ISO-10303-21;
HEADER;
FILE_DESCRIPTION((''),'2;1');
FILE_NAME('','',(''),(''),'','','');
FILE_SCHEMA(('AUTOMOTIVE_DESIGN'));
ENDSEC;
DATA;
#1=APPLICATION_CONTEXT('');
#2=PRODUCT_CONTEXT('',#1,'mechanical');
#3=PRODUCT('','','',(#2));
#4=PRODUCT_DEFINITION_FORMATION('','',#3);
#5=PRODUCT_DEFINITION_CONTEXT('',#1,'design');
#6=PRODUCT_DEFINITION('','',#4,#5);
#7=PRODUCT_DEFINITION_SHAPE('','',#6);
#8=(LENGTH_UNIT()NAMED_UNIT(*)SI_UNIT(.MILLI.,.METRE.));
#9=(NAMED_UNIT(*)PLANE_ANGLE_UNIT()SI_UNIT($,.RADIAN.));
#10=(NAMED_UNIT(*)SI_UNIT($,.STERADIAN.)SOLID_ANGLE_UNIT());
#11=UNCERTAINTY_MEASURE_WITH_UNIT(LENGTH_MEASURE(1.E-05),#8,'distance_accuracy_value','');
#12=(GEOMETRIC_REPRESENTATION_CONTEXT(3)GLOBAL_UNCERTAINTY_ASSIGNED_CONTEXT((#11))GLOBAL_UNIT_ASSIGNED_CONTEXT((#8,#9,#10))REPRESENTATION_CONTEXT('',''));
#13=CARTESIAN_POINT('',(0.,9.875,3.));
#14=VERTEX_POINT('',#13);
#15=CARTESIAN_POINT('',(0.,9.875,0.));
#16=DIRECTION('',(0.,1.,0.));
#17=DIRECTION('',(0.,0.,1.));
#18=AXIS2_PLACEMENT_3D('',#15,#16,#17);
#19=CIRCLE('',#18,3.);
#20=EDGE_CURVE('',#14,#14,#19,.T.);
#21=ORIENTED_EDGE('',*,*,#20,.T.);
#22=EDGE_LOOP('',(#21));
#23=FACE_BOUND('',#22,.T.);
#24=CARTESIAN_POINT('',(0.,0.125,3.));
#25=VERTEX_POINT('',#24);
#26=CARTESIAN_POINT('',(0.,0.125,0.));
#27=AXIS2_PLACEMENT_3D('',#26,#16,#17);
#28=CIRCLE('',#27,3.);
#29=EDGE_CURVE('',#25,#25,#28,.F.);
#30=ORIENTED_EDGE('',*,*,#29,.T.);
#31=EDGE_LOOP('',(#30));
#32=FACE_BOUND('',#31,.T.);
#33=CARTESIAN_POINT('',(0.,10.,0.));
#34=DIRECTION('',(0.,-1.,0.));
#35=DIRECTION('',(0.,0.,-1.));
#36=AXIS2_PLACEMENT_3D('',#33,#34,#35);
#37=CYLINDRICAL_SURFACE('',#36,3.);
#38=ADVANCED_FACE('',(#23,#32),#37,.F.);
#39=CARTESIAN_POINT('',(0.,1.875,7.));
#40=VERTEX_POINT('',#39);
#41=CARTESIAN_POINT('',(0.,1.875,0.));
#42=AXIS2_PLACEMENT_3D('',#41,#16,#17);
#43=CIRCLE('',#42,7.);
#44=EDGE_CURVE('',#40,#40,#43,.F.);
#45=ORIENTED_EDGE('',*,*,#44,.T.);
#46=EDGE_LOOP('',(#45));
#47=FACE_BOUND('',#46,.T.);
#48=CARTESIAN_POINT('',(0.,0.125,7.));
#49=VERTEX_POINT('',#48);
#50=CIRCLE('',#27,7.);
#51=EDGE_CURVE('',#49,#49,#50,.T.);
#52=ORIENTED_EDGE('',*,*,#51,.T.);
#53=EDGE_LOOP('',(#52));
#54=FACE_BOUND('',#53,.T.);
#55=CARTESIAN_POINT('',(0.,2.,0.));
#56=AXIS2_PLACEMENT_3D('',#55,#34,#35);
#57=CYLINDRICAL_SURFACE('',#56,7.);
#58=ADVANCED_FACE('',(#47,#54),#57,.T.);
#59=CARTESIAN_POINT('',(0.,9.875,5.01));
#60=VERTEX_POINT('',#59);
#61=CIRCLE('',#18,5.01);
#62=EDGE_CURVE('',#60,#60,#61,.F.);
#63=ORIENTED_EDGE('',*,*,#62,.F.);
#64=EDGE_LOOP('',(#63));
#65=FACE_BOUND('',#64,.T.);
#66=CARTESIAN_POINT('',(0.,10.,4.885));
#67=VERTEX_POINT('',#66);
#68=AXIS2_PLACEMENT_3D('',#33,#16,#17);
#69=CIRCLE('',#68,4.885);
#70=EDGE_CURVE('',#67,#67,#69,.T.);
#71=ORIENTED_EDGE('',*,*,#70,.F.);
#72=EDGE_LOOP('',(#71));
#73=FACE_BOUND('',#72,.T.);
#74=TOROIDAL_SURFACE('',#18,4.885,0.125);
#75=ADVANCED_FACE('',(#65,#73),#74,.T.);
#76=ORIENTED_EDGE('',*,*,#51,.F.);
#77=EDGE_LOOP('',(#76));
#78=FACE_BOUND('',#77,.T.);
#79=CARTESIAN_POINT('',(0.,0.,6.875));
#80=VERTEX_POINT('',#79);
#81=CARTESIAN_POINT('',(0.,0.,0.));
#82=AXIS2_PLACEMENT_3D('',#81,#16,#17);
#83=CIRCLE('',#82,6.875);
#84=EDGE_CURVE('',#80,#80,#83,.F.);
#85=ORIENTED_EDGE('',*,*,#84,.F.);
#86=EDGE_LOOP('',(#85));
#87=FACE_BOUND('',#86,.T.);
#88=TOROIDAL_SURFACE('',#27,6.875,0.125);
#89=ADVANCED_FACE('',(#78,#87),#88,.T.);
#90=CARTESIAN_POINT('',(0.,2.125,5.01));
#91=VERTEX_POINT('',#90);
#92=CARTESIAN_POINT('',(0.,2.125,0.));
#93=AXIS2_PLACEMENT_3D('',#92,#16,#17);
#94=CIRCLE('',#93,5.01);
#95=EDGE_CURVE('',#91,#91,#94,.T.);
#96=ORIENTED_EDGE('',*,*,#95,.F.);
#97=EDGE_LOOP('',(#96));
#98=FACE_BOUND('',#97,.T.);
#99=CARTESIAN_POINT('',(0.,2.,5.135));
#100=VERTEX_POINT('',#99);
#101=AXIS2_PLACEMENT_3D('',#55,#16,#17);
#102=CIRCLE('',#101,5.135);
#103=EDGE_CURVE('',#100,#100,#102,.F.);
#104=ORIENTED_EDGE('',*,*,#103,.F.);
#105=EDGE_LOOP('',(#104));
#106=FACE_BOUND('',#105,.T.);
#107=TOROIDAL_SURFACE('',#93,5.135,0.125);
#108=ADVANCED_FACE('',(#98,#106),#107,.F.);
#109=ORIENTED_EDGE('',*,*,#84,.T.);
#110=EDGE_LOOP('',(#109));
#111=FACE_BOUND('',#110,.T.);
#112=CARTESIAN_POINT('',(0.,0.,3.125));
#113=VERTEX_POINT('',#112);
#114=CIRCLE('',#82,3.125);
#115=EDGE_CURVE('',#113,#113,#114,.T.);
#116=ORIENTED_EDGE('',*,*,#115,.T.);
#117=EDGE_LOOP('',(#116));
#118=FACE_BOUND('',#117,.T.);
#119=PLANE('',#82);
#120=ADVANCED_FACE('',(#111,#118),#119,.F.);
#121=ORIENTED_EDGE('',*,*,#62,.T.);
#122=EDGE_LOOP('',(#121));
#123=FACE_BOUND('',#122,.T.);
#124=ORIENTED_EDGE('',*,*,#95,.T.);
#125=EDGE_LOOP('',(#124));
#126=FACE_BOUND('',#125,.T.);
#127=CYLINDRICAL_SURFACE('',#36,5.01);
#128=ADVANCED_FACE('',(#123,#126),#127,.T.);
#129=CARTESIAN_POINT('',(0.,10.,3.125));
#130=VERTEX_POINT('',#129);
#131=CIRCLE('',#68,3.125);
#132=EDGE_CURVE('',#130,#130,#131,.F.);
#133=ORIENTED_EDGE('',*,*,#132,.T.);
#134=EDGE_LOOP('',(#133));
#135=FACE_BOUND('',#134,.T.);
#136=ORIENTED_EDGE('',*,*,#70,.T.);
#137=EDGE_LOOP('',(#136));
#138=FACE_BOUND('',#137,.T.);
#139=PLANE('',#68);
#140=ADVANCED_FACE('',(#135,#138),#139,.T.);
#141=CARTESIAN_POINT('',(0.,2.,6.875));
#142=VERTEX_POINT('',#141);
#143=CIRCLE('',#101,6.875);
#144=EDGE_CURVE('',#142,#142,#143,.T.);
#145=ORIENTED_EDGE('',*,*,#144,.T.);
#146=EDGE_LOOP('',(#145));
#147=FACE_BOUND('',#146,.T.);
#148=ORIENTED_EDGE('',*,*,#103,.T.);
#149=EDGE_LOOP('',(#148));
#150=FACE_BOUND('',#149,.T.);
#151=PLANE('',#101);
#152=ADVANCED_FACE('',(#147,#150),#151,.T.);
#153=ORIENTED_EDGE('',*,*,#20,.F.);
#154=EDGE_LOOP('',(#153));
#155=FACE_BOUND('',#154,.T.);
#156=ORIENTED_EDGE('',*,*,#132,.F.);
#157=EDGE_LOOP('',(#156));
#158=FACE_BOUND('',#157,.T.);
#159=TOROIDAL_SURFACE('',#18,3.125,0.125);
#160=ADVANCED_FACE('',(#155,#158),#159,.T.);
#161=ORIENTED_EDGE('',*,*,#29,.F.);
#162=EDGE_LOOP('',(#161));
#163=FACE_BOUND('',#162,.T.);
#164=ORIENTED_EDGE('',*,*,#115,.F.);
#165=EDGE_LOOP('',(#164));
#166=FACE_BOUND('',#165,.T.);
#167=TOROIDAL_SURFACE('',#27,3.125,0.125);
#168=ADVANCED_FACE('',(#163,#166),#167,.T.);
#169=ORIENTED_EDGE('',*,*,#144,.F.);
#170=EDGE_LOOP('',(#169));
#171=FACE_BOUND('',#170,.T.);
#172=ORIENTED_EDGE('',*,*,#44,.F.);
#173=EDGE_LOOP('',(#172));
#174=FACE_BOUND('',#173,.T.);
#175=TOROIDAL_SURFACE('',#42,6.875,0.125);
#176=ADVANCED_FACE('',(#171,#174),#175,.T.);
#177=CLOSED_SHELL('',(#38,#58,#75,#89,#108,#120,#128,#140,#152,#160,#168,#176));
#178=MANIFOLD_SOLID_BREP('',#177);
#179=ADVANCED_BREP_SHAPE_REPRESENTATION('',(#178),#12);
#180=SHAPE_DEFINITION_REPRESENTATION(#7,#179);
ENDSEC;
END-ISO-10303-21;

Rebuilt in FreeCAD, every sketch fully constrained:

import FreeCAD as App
import Part
import Sketcher
from FreeCAD import Vector
Q = App.Units.Quantity


def edges_at(feature, points):
    """Names of the edges that pass closest to the given points."""
    edges = feature.Shape.Edges
    near = lambda p: min(range(len(edges)), key=lambda i: edges[i].distToShape(Part.Vertex(*p))[0])
    return sorted({f"Edge{near(p) + 1}" for p in points})

doc = App.newDocument("Part")
body = doc.addObject("PartDesign::Body", "Body")

sketch1 = doc.addObject("Sketcher::SketchObject", "Sketch")
body.addObject(sketch1)
sketch1.AttachmentSupport = (doc.XZ_Plane, [""])
sketch1.MapMode = "FlatFace"
sketch1.addGeometry([
    Part.Circle(Vector(0, 0, 0), Vector(0, 0, 1), 5),
    Part.Circle(Vector(0, 0, 0), Vector(0, 0, 1), 3),
], False)
sketch1.addConstraint([
    Sketcher.Constraint("Coincident", 0, 3, -1, 1),
    Sketcher.Constraint("Coincident", 1, 3, -1, 1),
    Sketcher.Constraint("Diameter", 1, Q("6 mm")),
    Sketcher.Constraint("Diameter", 0, Q("10.02 mm")),
])
pad1 = doc.addObject("PartDesign::Pad", "Pad")
body.addObject(pad1)
pad1.Profile = sketch1
pad1.Length = 10
pad1.Reversed = True

sketch2 = doc.addObject("Sketcher::SketchObject", "Sketch001")
body.addObject(sketch2)
sketch2.AttachmentSupport = (doc.XZ_Plane, [""])
sketch2.MapMode = "FlatFace"
sketch2.addGeometry([
    Part.Circle(Vector(0, 0, 0), Vector(0, 0, 1), 7),
    Part.Circle(Vector(0, 0, 0), Vector(0, 0, 1), 5),
], False)
sketch2.addConstraint([
    Sketcher.Constraint("Coincident", 0, 3, -1, 1),
    Sketcher.Constraint("Coincident", 1, 3, -1, 1),
    Sketcher.Constraint("Diameter", 0, Q("14 mm")),
    Sketcher.Constraint("Diameter", 1, Q("10.02 mm")),
])
pad2 = doc.addObject("PartDesign::Pad", "Pad001")
body.addObject(pad2)
pad2.Profile = sketch2
pad2.Length = 2
pad2.Reversed = True
doc.recompute()

fillet = doc.addObject("PartDesign::Fillet", "Fillet")
body.addObject(fillet)
fillet.Base = (pad2, edges_at(pad2, [
    (0, 0, -7),
    (0, 2, -5.01),
    (0, 10, -5.01),
    (0, 0, -3),
    (0, 10, -3),
    (0, 2, -7),
]))
fillet.Radius = 0.125

doc.recompute()
